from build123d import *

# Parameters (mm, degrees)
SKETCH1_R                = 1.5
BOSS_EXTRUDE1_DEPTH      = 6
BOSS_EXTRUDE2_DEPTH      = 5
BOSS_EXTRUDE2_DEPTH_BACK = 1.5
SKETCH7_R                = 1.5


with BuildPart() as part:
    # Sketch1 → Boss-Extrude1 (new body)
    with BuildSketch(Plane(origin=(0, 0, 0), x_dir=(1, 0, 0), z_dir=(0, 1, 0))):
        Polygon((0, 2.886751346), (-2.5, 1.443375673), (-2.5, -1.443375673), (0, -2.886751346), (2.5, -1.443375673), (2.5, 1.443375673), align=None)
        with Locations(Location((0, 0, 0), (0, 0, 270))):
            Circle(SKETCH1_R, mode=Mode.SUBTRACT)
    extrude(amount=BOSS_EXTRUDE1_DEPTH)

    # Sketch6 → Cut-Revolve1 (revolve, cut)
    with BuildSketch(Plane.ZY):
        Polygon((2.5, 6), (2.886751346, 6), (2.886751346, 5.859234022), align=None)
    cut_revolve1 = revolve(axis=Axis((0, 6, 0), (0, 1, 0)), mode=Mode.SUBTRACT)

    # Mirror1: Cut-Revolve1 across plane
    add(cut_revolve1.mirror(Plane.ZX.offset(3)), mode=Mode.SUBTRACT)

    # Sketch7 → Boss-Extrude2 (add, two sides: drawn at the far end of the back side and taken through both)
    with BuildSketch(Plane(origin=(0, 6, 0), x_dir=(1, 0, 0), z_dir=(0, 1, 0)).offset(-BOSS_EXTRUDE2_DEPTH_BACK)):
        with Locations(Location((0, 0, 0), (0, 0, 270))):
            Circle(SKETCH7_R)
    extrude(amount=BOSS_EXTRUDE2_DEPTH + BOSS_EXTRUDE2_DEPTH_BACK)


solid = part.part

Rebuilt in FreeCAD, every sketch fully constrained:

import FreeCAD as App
import Part
import Sketcher

V = App.Vector
Q = App.Units.Quantity

doc = App.newDocument("Part")
params = doc.addObject("Spreadsheet::Sheet", "Params")
for row, (alias, value) in enumerate([
    ("sketch1_diameter", "3 mm"),
    ("pad1_length", "6 mm"),
    ("groove_angle", "360 deg"),
    ("sketch3_diameter", "3 mm"),
    ("pad2_length", "5 mm"),
    ("pad2_length2", "1.5 mm"),
], start=1):
    params.set(f"A{row}", alias)
    params.set(f"B{row}", "=" + value)
    params.setAlias(f"B{row}", alias)

body = doc.addObject("PartDesign::Body", "Body")

sketch1 = body.newObject("Sketcher::SketchObject", "Sketch")
sketch1.AttachmentSupport = (doc.getObject("XZ_Plane"), [""])
sketch1.MapMode = "FlatFace"
sketch1.addGeometry([
    Part.LineSegment(V(0, -2.9, 0), V(-2.5, -1.4, 0)),
    Part.LineSegment(V(-2.5, -1.4, 0), V(-2.5, 1.4, 0)),
    Part.LineSegment(V(-2.5, 1.4, 0), V(0, 2.9, 0)),
    Part.LineSegment(V(0, 2.9, 0), V(2.5, 1.4, 0)),
    Part.LineSegment(V(2.5, 1.4, 0), V(2.5, -1.4, 0)),
    Part.LineSegment(V(2.5, -1.4, 0), V(0, -2.9, 0)),
    Part.Circle(V(0, 0, 0), V(0, 0, 1), 1.5),
], False)
sketch1.addConstraint([
    Sketcher.Constraint("Coincident", 0, 2, 1, 1),
    Sketcher.Constraint("Coincident", 1, 2, 2, 1),
    Sketcher.Constraint("Coincident", 2, 2, 3, 1),
    Sketcher.Constraint("Coincident", 3, 2, 4, 1),
    Sketcher.Constraint("Coincident", 4, 2, 5, 1),
    Sketcher.Constraint("Coincident", 5, 2, 0, 1),
    Sketcher.Constraint("Vertical", 1),
    Sketcher.Constraint("Vertical", 4),
    Sketcher.Constraint("Coincident", 6, 3, -1, 1),
    Sketcher.Constraint("Symmetric", 0, 2, 3, 2, -1, 1),
    Sketcher.Constraint("Symmetric", 2, 2, 5, 2, -1, 1),
    Sketcher.Constraint("PointOnObject", 2, 2, -2),
    Sketcher.Constraint("Parallel", 2, 5),
    Sketcher.Constraint("Horizontal", 1, 2, 3, 2),
    Sketcher.Constraint("Diameter", 6, 3.0),
    Sketcher.Constraint("Angle", 0, Q("150 deg")),
    Sketcher.Constraint("DistanceX", 1, 2, 3, 2, 5.0),
    Sketcher.Constraint("DistanceY", 1, 1, 1, 2, 2.886751),
])
sketch1.setExpression("Constraints[14]", "Params.sketch1_diameter")
pad1 = body.newObject("PartDesign::Pad", "Pad")
pad1.Profile = sketch1
pad1.setExpression("Length", "Params.pad1_length")
pad1.Reversed = True

sketch2 = body.newObject("Sketcher::SketchObject", "Sketch001")
sketch2.AttachmentSupport = (doc.getObject("YZ_Plane"), [""])
sketch2.MapMode = "FlatFace"
sketch2.addGeometry([
    Part.LineSegment(V(6, 2.89, 0), V(6, 2.5, 0)),
    Part.LineSegment(V(6, 2.5, 0), V(5.86, 2.89, 0)),
    Part.LineSegment(V(5.86, 2.89, 0), V(6, 2.89, 0)),
], False)
sketch2.addConstraint([
    Sketcher.Constraint("Coincident", 0, 2, 1, 1),
    Sketcher.Constraint("Coincident", 1, 2, 2, 1),
    Sketcher.Constraint("Coincident", 2, 2, 0, 1),
    Sketcher.Constraint("Vertical", 0),
    Sketcher.Constraint("Horizontal", 2),
    Sketcher.Constraint("Angle", 1, Q("110 deg")),
    Sketcher.Constraint("DistanceX", -1, 1, 0, 2, 6.0),
    Sketcher.Constraint("DistanceY", -1, 1, 0, 2, 2.5),
    Sketcher.Constraint("DistanceY", 0, 2, 0, 1, 0.386751),
])
groove = body.newObject("PartDesign::Groove", "Groove")
groove.Profile = sketch2
groove.ReferenceAxis = (sketch2, ["H_Axis"])
groove.setExpression("Angle", "Params.groove_angle")
doc.recompute()

datumplane = body.newObject("PartDesign::Plane", "DatumPlane")
datumplane.AttachmentSupport = (doc.getObject("XZ_Plane"), [""])
datumplane.MapMode = "FlatFace"
datumplane.AttachmentOffset = App.Placement(V(0, 0, -3), App.Rotation())
mirrored = body.newObject("PartDesign::Mirrored", "Mirrored")
mirrored.Originals = [groove]
mirrored.MirrorPlane = (datumplane, [""])
body.Tip = mirrored

sketch3 = body.newObject("Sketcher::SketchObject", "Sketch002")
sketch3.AttachmentSupport = (doc.getObject("XZ_Plane"), [""])
sketch3.MapMode = "FlatFace"
sketch3.AttachmentOffset = App.Placement(V(0, 0, -6), App.Rotation())
sketch3.addGeometry(Part.Circle(V(0, 0, 0), V(0, 0, 1), 1.5), False)
sketch3.addConstraint([
    Sketcher.Constraint("Coincident", 0, 3, -1, 1),
    Sketcher.Constraint("Diameter", 0, 3.0),
])
sketch3.setExpression("Constraints[1]", "Params.sketch3_diameter")
pad2 = body.newObject("PartDesign::Pad", "Pad001")
pad2.Profile = sketch3
pad2.Type = "TwoLengths"
pad2.setExpression("Length", "Params.pad2_length")
pad2.setExpression("Length2", "Params.pad2_length2")
pad2.Reversed = True

doc.recompute()
